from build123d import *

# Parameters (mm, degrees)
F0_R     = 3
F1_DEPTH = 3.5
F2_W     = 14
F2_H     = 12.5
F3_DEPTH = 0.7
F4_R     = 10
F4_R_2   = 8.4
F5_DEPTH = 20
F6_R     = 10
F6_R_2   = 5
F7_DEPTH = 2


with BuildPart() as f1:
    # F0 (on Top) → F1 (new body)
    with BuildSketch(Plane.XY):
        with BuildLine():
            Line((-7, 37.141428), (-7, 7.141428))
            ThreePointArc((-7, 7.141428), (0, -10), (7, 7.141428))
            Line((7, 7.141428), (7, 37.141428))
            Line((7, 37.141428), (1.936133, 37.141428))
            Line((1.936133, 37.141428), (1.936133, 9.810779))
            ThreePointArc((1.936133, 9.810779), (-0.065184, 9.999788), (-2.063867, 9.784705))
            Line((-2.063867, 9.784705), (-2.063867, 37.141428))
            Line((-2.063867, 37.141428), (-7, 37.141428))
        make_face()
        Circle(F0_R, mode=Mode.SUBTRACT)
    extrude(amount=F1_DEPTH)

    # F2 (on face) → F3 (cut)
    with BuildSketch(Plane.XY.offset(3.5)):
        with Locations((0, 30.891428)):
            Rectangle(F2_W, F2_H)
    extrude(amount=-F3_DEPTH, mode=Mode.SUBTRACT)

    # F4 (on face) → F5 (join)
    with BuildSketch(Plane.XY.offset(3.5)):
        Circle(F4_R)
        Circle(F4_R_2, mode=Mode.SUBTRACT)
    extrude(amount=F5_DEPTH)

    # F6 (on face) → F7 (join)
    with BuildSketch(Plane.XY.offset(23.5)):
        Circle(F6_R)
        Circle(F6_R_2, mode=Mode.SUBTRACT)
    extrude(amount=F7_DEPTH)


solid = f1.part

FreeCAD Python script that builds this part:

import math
import FreeCAD as App
import Part
import Sketcher
from FreeCAD import Vector
Q = App.Units.Quantity

doc = App.newDocument("Part")
body = doc.addObject("PartDesign::Body", "Body")

sketch1 = doc.addObject("Sketcher::SketchObject", "Sketch")
body.addObject(sketch1)
sketch1.AttachmentSupport = (doc.XY_Plane, [""])
sketch1.MapMode = "FlatFace"
sketch1.addGeometry([
    Part.LineSegment(Vector(-7, 37.1, 0), Vector(-7, 7.1, 0)),
    Part.ArcOfCircle(Part.Circle(Vector(0, 0, 0), Vector(0, 0, 1), 10), math.radians(134), math.radians(406)),
    Part.LineSegment(Vector(7, 7.1, 0), Vector(7, 37.1, 0)),
    Part.LineSegment(Vector(7, 37.1, 0), Vector(1.9, 37.1, 0)),
    Part.LineSegment(Vector(1.9, 37.1, 0), Vector(1.9, 9.8, 0)),
    Part.ArcOfCircle(Part.Circle(Vector(0, 0, 0), Vector(0, 0, 1), 10), math.radians(79), math.radians(102)),
    Part.LineSegment(Vector(-2.1, 9.8, 0), Vector(-2.1, 37.1, 0)),
    Part.LineSegment(Vector(-2.1, 37.1, 0), Vector(-7, 37.1, 0)),
    Part.Circle(Vector(0, 0, 0), Vector(0, 0, 1), 3),
], False)
sketch1.addConstraint([
    Sketcher.Constraint("Coincident", 0, 2, 1, 1),
    Sketcher.Constraint("Coincident", 1, 2, 2, 1),
    Sketcher.Constraint("Coincident", 2, 2, 3, 1),
    Sketcher.Constraint("Coincident", 3, 2, 4, 1),
    Sketcher.Constraint("Coincident", 4, 2, 5, 1),
    Sketcher.Constraint("Coincident", 5, 2, 6, 1),
    Sketcher.Constraint("Coincident", 6, 2, 7, 1),
    Sketcher.Constraint("Coincident", 7, 2, 0, 1),
    Sketcher.Constraint("Vertical", 0),
    Sketcher.Constraint("Vertical", 2),
    Sketcher.Constraint("Horizontal", 3),
    Sketcher.Constraint("Vertical", 4),
    Sketcher.Constraint("Vertical", 6),
    Sketcher.Constraint("Horizontal", 7),
    Sketcher.Constraint("Coincident", 1, 3, -1, 1),
    Sketcher.Constraint("Coincident", 8, 3, -1, 1),
    Sketcher.Constraint("Symmetric", 2, 2, 7, 2, -2),
    Sketcher.Constraint("PointOnObject", 5, 3, -2),
    Sketcher.Constraint("Diameter", 8, Q("6 mm")),
    Sketcher.Constraint("Radius", 1, Q("10 mm")),
    Sketcher.Constraint("DistanceY", 0, 2, 0, 1, Q("30 mm")),
    Sketcher.Constraint("DistanceX", 0, 2, -1, 1, Q("7 mm")),
    Sketcher.Constraint("DistanceX", 5, 2, 4, 2, Q("4 mm")),
    Sketcher.Constraint("Radius", 5, Q("9.999971 mm")),
    Sketcher.Constraint("DistanceY", 4, 2, 4, 1, Q("27.330649 mm")),
    Sketcher.Constraint("DistanceY", 5, 3, 0, 2, Q("7.141399 mm")),
])
pad1 = doc.addObject("PartDesign::Pad", "Pad")
body.addObject(pad1)
pad1.Profile = sketch1
pad1.Length = 3.5

sketch2 = doc.addObject("Sketcher::SketchObject", "Sketch001")
body.addObject(sketch2)
sketch2.AttachmentSupport = (doc.XY_Plane, [""])
sketch2.MapMode = "FlatFace"
sketch2.AttachmentOffset = App.Placement(Vector(0, 0, 3.5), App.Rotation())
sketch2.addGeometry([
    Part.LineSegment(Vector(-7, 37, 0), Vector(-7, 25, 0)),
    Part.LineSegment(Vector(-7, 25, 0), Vector(7, 25, 0)),
    Part.LineSegment(Vector(7, 25, 0), Vector(7, 37, 0)),
    Part.LineSegment(Vector(7, 37, 0), Vector(-7, 37, 0)),
], False)
sketch2.addConstraint([
    Sketcher.Constraint("Coincident", 0, 2, 1, 1),
    Sketcher.Constraint("Coincident", 1, 2, 2, 1),
    Sketcher.Constraint("Coincident", 2, 2, 3, 1),
    Sketcher.Constraint("Coincident", 3, 2, 0, 1),
    Sketcher.Constraint("Vertical", 0),
    Sketcher.Constraint("Horizontal", 1),
    Sketcher.Constraint("Vertical", 2),
    Sketcher.Constraint("Horizontal", 3),
    Sketcher.Constraint("DistanceX", 1, 1, 1, 2, Q("14 mm")),
    Sketcher.Constraint("DistanceY", 0, 2, 0, 1, Q("12.5 mm")),
    Sketcher.Constraint("DistanceX", 0, 2, -1, 1, Q("7 mm")),
    Sketcher.Constraint("DistanceY", -1, 1, 0, 2, Q("24.641428 mm")),
])
pocket1 = doc.addObject("PartDesign::Pocket", "Pocket")
body.addObject(pocket1)
pocket1.Profile = sketch2
pocket1.Length = 0.7

sketch3 = doc.addObject("Sketcher::SketchObject", "Sketch002")
body.addObject(sketch3)
sketch3.AttachmentSupport = (doc.XY_Plane, [""])
sketch3.MapMode = "FlatFace"
sketch3.AttachmentOffset = App.Placement(Vector(0, 0, 3.5), App.Rotation())
sketch3.addGeometry([
    Part.Circle(Vector(0, 0, 0), Vector(0, 0, 1), 10),
    Part.Circle(Vector(0, 0, 0), Vector(0, 0, 1), 8),
], False)
sketch3.addConstraint([
    Sketcher.Constraint("Coincident", 0, 3, -1, 1),
    Sketcher.Constraint("Coincident", 1, 3, -1, 1),
    Sketcher.Constraint("Diameter", 0, Q("20 mm")),
    Sketcher.Constraint("Diameter", 1, Q("16.8 mm")),
])
pad2 = doc.addObject("PartDesign::Pad", "Pad001")
body.addObject(pad2)
pad2.Profile = sketch3
pad2.Length = 20

sketch4 = doc.addObject("Sketcher::SketchObject", "Sketch003")
body.addObject(sketch4)
sketch4.AttachmentSupport = (doc.XY_Plane, [""])
sketch4.MapMode = "FlatFace"
sketch4.AttachmentOffset = App.Placement(Vector(0, 0, 23.5), App.Rotation())
sketch4.addGeometry([
    Part.Circle(Vector(0, 0, 0), Vector(0, 0, 1), 10),
    Part.Circle(Vector(0, 0, 0), Vector(0, 0, 1), 5),
], False)
sketch4.addConstraint([
    Sketcher.Constraint("Coincident", 0, 3, -1, 1),
    Sketcher.Constraint("Coincident", 1, 3, -1, 1),
    Sketcher.Constraint("Diameter", 0, Q("20 mm")),
    Sketcher.Constraint("Diameter", 1, Q("10 mm")),
])
pad3 = doc.addObject("PartDesign::Pad", "Pad002")
body.addObject(pad3)
pad3.Profile = sketch4
pad3.Length = 2

doc.recompute()
